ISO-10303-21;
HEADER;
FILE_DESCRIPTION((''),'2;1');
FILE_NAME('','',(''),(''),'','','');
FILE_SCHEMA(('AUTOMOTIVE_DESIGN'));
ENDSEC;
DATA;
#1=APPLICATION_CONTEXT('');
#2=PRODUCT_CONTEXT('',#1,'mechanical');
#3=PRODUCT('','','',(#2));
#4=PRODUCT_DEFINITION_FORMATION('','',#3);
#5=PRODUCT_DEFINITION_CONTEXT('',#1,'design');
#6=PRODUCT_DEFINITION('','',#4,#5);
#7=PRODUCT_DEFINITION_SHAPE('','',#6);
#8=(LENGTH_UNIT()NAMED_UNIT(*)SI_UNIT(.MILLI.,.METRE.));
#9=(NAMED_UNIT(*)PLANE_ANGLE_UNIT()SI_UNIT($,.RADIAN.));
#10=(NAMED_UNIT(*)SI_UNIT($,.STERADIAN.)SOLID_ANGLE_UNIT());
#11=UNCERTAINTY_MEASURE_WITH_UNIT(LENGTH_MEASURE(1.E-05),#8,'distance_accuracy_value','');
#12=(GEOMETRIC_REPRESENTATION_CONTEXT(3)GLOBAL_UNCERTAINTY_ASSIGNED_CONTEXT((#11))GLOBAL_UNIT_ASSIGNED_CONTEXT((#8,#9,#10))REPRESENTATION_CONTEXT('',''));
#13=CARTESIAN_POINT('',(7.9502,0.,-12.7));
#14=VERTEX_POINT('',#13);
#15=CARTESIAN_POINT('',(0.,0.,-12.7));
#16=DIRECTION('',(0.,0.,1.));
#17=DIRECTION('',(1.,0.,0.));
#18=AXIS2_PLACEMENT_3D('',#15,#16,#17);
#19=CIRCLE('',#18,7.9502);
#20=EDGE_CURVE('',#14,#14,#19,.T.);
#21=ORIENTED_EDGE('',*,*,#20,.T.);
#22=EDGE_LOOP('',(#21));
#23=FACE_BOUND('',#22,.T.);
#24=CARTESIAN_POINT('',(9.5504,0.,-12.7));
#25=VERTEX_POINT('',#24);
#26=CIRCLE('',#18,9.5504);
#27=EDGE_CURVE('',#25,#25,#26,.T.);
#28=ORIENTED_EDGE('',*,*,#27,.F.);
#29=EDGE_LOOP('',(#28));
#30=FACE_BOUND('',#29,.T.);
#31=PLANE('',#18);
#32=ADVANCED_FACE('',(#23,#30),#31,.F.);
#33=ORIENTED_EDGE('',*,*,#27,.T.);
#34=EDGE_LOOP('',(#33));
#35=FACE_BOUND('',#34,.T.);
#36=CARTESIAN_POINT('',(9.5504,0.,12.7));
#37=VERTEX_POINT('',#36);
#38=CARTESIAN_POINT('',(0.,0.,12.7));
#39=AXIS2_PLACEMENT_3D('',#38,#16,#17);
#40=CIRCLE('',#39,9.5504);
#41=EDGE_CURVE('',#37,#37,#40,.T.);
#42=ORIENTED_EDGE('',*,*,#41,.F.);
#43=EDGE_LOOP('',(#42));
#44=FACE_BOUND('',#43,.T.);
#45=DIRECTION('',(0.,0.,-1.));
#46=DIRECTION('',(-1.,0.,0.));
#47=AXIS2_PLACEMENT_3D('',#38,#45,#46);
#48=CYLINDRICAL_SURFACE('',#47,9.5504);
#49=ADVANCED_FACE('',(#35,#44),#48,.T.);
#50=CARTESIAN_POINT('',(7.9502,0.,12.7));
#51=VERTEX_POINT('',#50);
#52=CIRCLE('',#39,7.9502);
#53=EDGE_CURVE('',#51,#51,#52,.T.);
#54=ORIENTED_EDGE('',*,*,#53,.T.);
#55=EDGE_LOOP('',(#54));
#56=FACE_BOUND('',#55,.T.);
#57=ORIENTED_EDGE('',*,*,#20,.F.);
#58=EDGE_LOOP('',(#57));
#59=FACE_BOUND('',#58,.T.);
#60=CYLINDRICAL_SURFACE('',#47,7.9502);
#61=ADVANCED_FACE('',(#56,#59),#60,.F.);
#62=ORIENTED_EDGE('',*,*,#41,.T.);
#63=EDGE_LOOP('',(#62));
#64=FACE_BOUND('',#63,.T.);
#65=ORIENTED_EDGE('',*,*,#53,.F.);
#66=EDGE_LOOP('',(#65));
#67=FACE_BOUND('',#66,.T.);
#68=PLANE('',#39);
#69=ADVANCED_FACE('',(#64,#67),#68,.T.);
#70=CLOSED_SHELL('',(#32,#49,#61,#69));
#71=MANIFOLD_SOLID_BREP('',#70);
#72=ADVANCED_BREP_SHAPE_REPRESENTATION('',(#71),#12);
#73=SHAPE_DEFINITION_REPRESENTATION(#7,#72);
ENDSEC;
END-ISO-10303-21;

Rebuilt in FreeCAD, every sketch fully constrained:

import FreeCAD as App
import Part
import Sketcher
Q = App.Units.Quantity

doc = App.newDocument("Part")
body = doc.addObject("PartDesign::Body", "Body")

sketch1 = body.newObject("Sketcher::SketchObject", "Sketch")
sketch1.AttachmentSupport = (doc.getObject("XY_Plane"), [""])
sketch1.MapMode = "FlatFace"
sketch1.addGeometry(Part.Circle(App.Vector(0, 0, 0), App.Vector(0, 0, 1), 9.5504), False)
sketch1.addGeometry(Part.Circle(App.Vector(0, 0, 0), App.Vector(0, 0, 1), 7.9502), False)
sketch1.addConstraint(Sketcher.Constraint("Coincident", 0, 3, -1, 1))
sketch1.addConstraint(Sketcher.Constraint("Coincident", 1, 3, -1, 1))
sketch1.addConstraint(Sketcher.Constraint("Diameter", 0, Q("0.752 in")))
sketch1.addConstraint(Sketcher.Constraint("Diameter", 1, Q("0.626 in")))
pad1 = body.newObject("PartDesign::Pad", "Pad")
pad1.Profile = sketch1
pad1.Type = "TwoLengths"
pad1.Length = Q("0.5 in")
pad1.Length2 = Q("0.5 in")

doc.recompute()
